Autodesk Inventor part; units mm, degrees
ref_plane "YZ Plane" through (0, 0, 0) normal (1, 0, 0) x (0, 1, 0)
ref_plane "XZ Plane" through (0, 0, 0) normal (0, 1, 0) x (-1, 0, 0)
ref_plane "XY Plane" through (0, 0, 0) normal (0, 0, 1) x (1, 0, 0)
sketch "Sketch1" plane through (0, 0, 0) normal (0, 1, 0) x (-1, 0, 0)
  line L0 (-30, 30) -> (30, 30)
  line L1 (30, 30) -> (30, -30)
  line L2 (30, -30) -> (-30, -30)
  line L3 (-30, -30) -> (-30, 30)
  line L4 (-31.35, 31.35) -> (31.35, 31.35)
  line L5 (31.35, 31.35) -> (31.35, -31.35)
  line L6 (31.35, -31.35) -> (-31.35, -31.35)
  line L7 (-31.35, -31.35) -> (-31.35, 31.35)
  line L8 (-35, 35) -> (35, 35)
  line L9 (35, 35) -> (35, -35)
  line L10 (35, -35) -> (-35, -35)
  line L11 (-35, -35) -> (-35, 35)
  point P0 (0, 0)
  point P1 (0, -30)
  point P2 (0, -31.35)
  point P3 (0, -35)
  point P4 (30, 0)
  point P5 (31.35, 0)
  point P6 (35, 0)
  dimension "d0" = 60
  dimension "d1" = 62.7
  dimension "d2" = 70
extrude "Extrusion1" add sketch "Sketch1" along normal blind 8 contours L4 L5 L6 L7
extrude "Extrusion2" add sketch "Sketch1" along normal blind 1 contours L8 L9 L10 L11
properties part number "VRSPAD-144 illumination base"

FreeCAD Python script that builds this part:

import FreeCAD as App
import Part
import Sketcher
from FreeCAD import Vector

doc = App.newDocument("Part")
params = doc.addObject("Spreadsheet::Sheet", "Params")
for row, (alias, value) in enumerate([
    ("sketch1_width", "60 mm"),
    ("sketch1_width2", "62.7 mm"),
    ("pad1_length", "8 mm"),
    ("sketch2_width", "70 mm"),
    ("sketch2_width2", "62.7 mm"),
    ("pad2_length", "1 mm"),
], start=1):
    params.set(f"A{row}", alias)
    params.set(f"B{row}", "=" + value)
    params.setAlias(f"B{row}", alias)

body = doc.addObject("PartDesign::Body", "Body")

# Sketch on XZ plane
sketch1 = body.newObject("Sketcher::SketchObject", "Sketch")
sketch1.AttachmentSupport = (doc.getObject("XZ_Plane"), [""])
sketch1.MapMode = "FlatFace"
sketch1.addGeometry([
    Part.LineSegment(Vector(-31.35, 31.35, 0), Vector(31.35, 31.35, 0)),  # 0
    Part.LineSegment(Vector(31.35, 31.35, 0), Vector(31.35, -31.35, 0)),  # 1
    Part.LineSegment(Vector(31.35, -31.35, 0), Vector(-31.35, -31.35, 0)),  # 2
    Part.LineSegment(Vector(-31.35, -31.35, 0), Vector(-31.35, 31.35, 0)),  # 3
    Part.LineSegment(Vector(30, -30, 0), Vector(30, 30, 0)),  # 4
    Part.LineSegment(Vector(30, 30, 0), Vector(-30, 30, 0)),  # 5
    Part.LineSegment(Vector(-30, 30, 0), Vector(-30, -30, 0)),  # 6
    Part.LineSegment(Vector(-30, -30, 0), Vector(30, -30, 0)),  # 7
], False)
sketch1.addConstraint([
    Sketcher.Constraint("Coincident", 0, 2, 1, 1),
    Sketcher.Constraint("Coincident", 1, 2, 2, 1),
    Sketcher.Constraint("Coincident", 2, 2, 3, 1),
    Sketcher.Constraint("Coincident", 3, 2, 0, 1),
    Sketcher.Constraint("Coincident", 4, 2, 5, 1),
    Sketcher.Constraint("Coincident", 5, 2, 6, 1),
    Sketcher.Constraint("Coincident", 6, 2, 7, 1),
    Sketcher.Constraint("Coincident", 7, 2, 4, 1),
    Sketcher.Constraint("Horizontal", 0),
    Sketcher.Constraint("Vertical", 1),
    Sketcher.Constraint("Horizontal", 2),
    Sketcher.Constraint("Vertical", 3),
    Sketcher.Constraint("Vertical", 4),
    Sketcher.Constraint("Horizontal", 5),
    Sketcher.Constraint("Vertical", 6),
    Sketcher.Constraint("Horizontal", 7),
    Sketcher.Constraint("Symmetric", 0, 2, 2, 2, -1, 1),
    Sketcher.Constraint("Symmetric", 4, 2, 6, 2, -1, 1),
    Sketcher.Constraint("Equal", 2, 1),
    Sketcher.Constraint("Equal", 7, 4),
    Sketcher.Constraint("DistanceX", 5, 2, 5, 1, 60.0),
    Sketcher.Constraint("DistanceX", 0, 1, 0, 2, 62.7),
])
sketch1.setExpression("Constraints[20]", "Params.sketch1_width")
sketch1.setExpression("Constraints[21]", "Params.sketch1_width2")
pad1 = body.newObject("PartDesign::Pad", "Pad")
pad1.Profile = sketch1
pad1.setExpression("Length", "Params.pad1_length")
pad1.Reversed = True

# Sketch on XZ plane
sketch2 = body.newObject("Sketcher::SketchObject", "Sketch001")
sketch2.AttachmentSupport = (doc.getObject("XZ_Plane"), [""])
sketch2.MapMode = "FlatFace"
sketch2.addGeometry([
    Part.LineSegment(Vector(-35, 35, 0), Vector(35, 35, 0)),  # 0
    Part.LineSegment(Vector(35, 35, 0), Vector(35, -35, 0)),  # 1
    Part.LineSegment(Vector(35, -35, 0), Vector(-35, -35, 0)),  # 2
    Part.LineSegment(Vector(-35, -35, 0), Vector(-35, 35, 0)),  # 3
    Part.LineSegment(Vector(31.35, -31.35, 0), Vector(31.35, 31.35, 0)),  # 4
    Part.LineSegment(Vector(31.35, 31.35, 0), Vector(-31.35, 31.35, 0)),  # 5
    Part.LineSegment(Vector(-31.35, 31.35, 0), Vector(-31.35, -31.35, 0)),  # 6
    Part.LineSegment(Vector(-31.35, -31.35, 0), Vector(31.35, -31.35, 0)),  # 7
], False)
sketch2.addConstraint([
    Sketcher.Constraint("Coincident", 0, 2, 1, 1),
    Sketcher.Constraint("Coincident", 1, 2, 2, 1),
    Sketcher.Constraint("Coincident", 2, 2, 3, 1),
    Sketcher.Constraint("Coincident", 3, 2, 0, 1),
    Sketcher.Constraint("Coincident", 4, 2, 5, 1),
    Sketcher.Constraint("Coincident", 5, 2, 6, 1),
    Sketcher.Constraint("Coincident", 6, 2, 7, 1),
    Sketcher.Constraint("Coincident", 7, 2, 4, 1),
    Sketcher.Constraint("Horizontal", 0),
    Sketcher.Constraint("Vertical", 1),
    Sketcher.Constraint("Horizontal", 2),
    Sketcher.Constraint("Vertical", 3),
    Sketcher.Constraint("Vertical", 4),
    Sketcher.Constraint("Horizontal", 5),
    Sketcher.Constraint("Vertical", 6),
    Sketcher.Constraint("Horizontal", 7),
    Sketcher.Constraint("Symmetric", 0, 2, 2, 2, -1, 1),
    Sketcher.Constraint("Symmetric", 4, 2, 6, 2, -1, 1),
    Sketcher.Constraint("Equal", 2, 1),
    Sketcher.Constraint("Equal", 7, 4),
    Sketcher.Constraint("DistanceX", 0, 1, 0, 2, 70.0),
    Sketcher.Constraint("DistanceX", 5, 2, 5, 1, 62.7),
])
sketch2.setExpression("Constraints[20]", "Params.sketch2_width")
sketch2.setExpression("Constraints[21]", "Params.sketch2_width2")
pad2 = body.newObject("PartDesign::Pad", "Pad001")
pad2.Profile = sketch2
pad2.setExpression("Length", "Params.pad2_length")
pad2.Reversed = True

doc.recompute()
